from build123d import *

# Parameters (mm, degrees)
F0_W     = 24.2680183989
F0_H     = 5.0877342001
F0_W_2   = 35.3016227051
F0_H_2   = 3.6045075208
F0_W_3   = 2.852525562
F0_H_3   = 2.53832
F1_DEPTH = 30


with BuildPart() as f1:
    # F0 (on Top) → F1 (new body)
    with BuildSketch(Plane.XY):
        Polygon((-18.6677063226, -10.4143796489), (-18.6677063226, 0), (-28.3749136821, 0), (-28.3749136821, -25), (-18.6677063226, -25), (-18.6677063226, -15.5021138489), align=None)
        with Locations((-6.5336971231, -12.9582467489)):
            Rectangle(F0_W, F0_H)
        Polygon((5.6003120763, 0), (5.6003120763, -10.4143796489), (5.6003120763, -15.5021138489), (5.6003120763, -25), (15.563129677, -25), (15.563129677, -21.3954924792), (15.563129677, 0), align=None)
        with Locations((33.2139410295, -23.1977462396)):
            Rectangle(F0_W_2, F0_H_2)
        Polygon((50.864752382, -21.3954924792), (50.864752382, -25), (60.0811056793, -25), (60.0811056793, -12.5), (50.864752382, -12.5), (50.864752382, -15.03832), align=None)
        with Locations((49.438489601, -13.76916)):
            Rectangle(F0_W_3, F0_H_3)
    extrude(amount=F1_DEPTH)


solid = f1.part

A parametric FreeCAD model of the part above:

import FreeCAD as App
import Part
import Sketcher

doc = App.newDocument("Part")
body = doc.addObject("PartDesign::Body", "Body")

sketch1 = body.newObject("Sketcher::SketchObject", "Sketch")
sketch1.AttachmentSupport = (doc.getObject("XY_Plane"), [""])
sketch1.MapMode = "FlatFace"
sketch1.addGeometry([
    Part.LineSegment(App.Vector(-18.7, 0, 0), App.Vector(-28.4, 0, 0)),
    Part.LineSegment(App.Vector(-28.4, 0, 0), App.Vector(-28.4, -25, 0)),
    Part.LineSegment(App.Vector(-28.4, -25, 0), App.Vector(-18.7, -25, 0)),
    Part.LineSegment(App.Vector(-18.7, -25, 0), App.Vector(-18.7, -15.5, 0)),
    Part.LineSegment(App.Vector(-18.7, -15.5, 0), App.Vector(5.6, -15.5, 0)),
    Part.LineSegment(App.Vector(5.6, -15.5, 0), App.Vector(5.6, -25, 0)),
    Part.LineSegment(App.Vector(5.6, -25, 0), App.Vector(60.1, -25, 0)),
    Part.LineSegment(App.Vector(60.1, -25, 0), App.Vector(60.1, -12.5, 0)),
    Part.LineSegment(App.Vector(60.1, -12.5, 0), App.Vector(48, -12.5, 0)),
    Part.LineSegment(App.Vector(48, -12.5, 0), App.Vector(48, -15, 0)),
    Part.LineSegment(App.Vector(48, -15, 0), App.Vector(50.9, -15, 0)),
    Part.LineSegment(App.Vector(50.9, -15, 0), App.Vector(50.9, -21.4, 0)),
    Part.LineSegment(App.Vector(50.9, -21.4, 0), App.Vector(15.6, -21.4, 0)),
    Part.LineSegment(App.Vector(15.6, -21.4, 0), App.Vector(15.6, 0, 0)),
    Part.LineSegment(App.Vector(15.6, 0, 0), App.Vector(5.6, 0, 0)),
    Part.LineSegment(App.Vector(5.6, 0, 0), App.Vector(5.6, -10.4, 0)),
    Part.LineSegment(App.Vector(5.6, -10.4, 0), App.Vector(-18.7, -10.4, 0)),
    Part.LineSegment(App.Vector(-18.7, -10.4, 0), App.Vector(-18.7, 0, 0)),
], False)
sketch1.addConstraint([
    Sketcher.Constraint("Coincident", 0, 2, 1, 1),
    Sketcher.Constraint("Coincident", 1, 2, 2, 1),
    Sketcher.Constraint("Coincident", 2, 2, 3, 1),
    Sketcher.Constraint("Coincident", 3, 2, 4, 1),
    Sketcher.Constraint("Coincident", 4, 2, 5, 1),
    Sketcher.Constraint("Coincident", 5, 2, 6, 1),
    Sketcher.Constraint("Coincident", 6, 2, 7, 1),
    Sketcher.Constraint("Coincident", 7, 2, 8, 1),
    Sketcher.Constraint("Coincident", 8, 2, 9, 1),
    Sketcher.Constraint("Coincident", 9, 2, 10, 1),
    Sketcher.Constraint("Coincident", 10, 2, 11, 1),
    Sketcher.Constraint("Coincident", 11, 2, 12, 1),
    Sketcher.Constraint("Coincident", 12, 2, 13, 1),
    Sketcher.Constraint("Coincident", 13, 2, 14, 1),
    Sketcher.Constraint("Coincident", 14, 2, 15, 1),
    Sketcher.Constraint("Coincident", 15, 2, 16, 1),
    Sketcher.Constraint("Coincident", 16, 2, 17, 1),
    Sketcher.Constraint("Coincident", 17, 2, 0, 1),
    Sketcher.Constraint("Horizontal", 0),
    Sketcher.Constraint("Vertical", 1),
    Sketcher.Constraint("Horizontal", 2),
    Sketcher.Constraint("Vertical", 3),
    Sketcher.Constraint("Horizontal", 4),
    Sketcher.Constraint("Vertical", 5),
    Sketcher.Constraint("Horizontal", 6),
    Sketcher.Constraint("Vertical", 7),
    Sketcher.Constraint("Horizontal", 8),
    Sketcher.Constraint("Vertical", 9),
    Sketcher.Constraint("Horizontal", 10),
    Sketcher.Constraint("Vertical", 11),
    Sketcher.Constraint("Horizontal", 12),
    Sketcher.Constraint("Vertical", 13),
    Sketcher.Constraint("Horizontal", 14),
    Sketcher.Constraint("Vertical", 15),
    Sketcher.Constraint("Horizontal", 16),
    Sketcher.Constraint("Vertical", 17),
    Sketcher.Constraint("PointOnObject", 0, 2, -1),
    Sketcher.Constraint("PointOnObject", 13, 2, -1),
    Sketcher.Constraint("Horizontal", 2, 2, 5, 2),
    Sketcher.Constraint("Vertical", 5, 2, 14, 2),
    Sketcher.Constraint("Vertical", 3, 2, 16, 2),
    Sketcher.Constraint("DistanceY", 1, 2, 1, 1, 25.0),
    Sketcher.Constraint("DistanceY", 7, 1, 7, 2, 12.5),
    Sketcher.Constraint("DistanceX", 4, 1, 4, 2, 24.268018),
    Sketcher.Constraint("DistanceX", 8, 2, 8, 1, 12.068879),
    Sketcher.Constraint("DistanceY", 9, 2, 9, 1, 2.53832),
    Sketcher.Constraint("DistanceY", 15, 2, 15, 1, 10.41438),
    Sketcher.Constraint("DistanceX", 0, 2, 0, 1, 9.707207),
    Sketcher.Constraint("DistanceX", 6, 1, 6, 2, 54.480794),
    Sketcher.Constraint("DistanceX", 10, 1, 10, 2, 2.852526),
    Sketcher.Constraint("DistanceX", 12, 2, 12, 1, 35.301623),
    Sketcher.Constraint("DistanceY", 3, 1, 3, 2, 9.497886),
    Sketcher.Constraint("DistanceY", 11, 2, 11, 1, 6.357172),
    Sketcher.Constraint("DistanceX", -1, 1, 12, 2, 15.56313),
])
pad1 = body.newObject("PartDesign::Pad", "Pad")
pad1.Profile = sketch1
pad1.Length = 30

doc.recompute()
